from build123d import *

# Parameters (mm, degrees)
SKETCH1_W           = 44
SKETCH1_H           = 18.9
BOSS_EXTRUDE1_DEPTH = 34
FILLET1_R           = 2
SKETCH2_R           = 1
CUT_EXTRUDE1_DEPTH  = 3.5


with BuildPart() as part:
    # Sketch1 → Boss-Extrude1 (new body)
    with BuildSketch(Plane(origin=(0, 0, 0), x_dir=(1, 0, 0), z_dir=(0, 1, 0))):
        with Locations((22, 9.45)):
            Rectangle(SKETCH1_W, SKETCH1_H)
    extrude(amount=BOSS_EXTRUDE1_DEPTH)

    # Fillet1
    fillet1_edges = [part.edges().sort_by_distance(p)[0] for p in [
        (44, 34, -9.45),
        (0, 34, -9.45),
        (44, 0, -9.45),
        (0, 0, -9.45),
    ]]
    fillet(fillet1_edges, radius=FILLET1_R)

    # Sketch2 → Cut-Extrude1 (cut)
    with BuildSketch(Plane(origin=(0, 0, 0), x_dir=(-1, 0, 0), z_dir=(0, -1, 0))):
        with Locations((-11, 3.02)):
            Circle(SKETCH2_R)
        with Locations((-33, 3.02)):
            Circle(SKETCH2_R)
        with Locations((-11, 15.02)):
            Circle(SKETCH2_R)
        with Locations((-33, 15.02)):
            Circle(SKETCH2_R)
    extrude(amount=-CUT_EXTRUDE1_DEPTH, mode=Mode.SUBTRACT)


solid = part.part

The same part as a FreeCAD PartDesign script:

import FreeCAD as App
import Part
import Sketcher
Q = App.Units.Quantity


def edges_at(feature, points):
    """Names of the edges that pass closest to the given points."""
    edges = feature.Shape.Edges
    near = lambda p: min(range(len(edges)), key=lambda i: edges[i].distToShape(Part.Vertex(*p))[0])
    return sorted({f"Edge{near(p) + 1}" for p in points})


def add_polygon(sketch, points):
    """Adds a closed chain of lines whose ends are joined by coincident constraints."""
    first, n = sketch.GeometryCount, len(points)
    for a, b in zip(points, points[1:] + points[:1]):
        sketch.addGeometry(Part.LineSegment(App.Vector(*a, 0), App.Vector(*b, 0)), False)
    for i in range(n):
        sketch.addConstraint(Sketcher.Constraint("Coincident", first + i, 2, first + (i + 1) % n, 1))

doc = App.newDocument("Part")
body = doc.addObject("PartDesign::Body", "Body")

# Sketch on XZ plane
sketch1 = body.newObject("Sketcher::SketchObject", "Sketch")
sketch1.AttachmentSupport = (doc.getObject("XZ_Plane"), [""])
sketch1.MapMode = "FlatFace"
add_polygon(sketch1, [(0, -18.9), (0, 0), (44, 0), (44, -18.9)])  # lines 0-3
sketch1.addConstraint([
    Sketcher.Constraint("Vertical", 0),
    Sketcher.Constraint("Horizontal", 1),
    Sketcher.Constraint("Vertical", 2),
    Sketcher.Constraint("Horizontal", 3),
    Sketcher.Constraint("Coincident", 0, 2, -1, 1),
    Sketcher.Constraint("DistanceX", 1, 1, 1, 2, Q("44 mm")),
    Sketcher.Constraint("DistanceY", 0, 1, 0, 2, Q("18.9 mm")),
])
pad1 = body.newObject("PartDesign::Pad", "Pad")
pad1.Profile = sketch1
pad1.Length = 34
pad1.Reversed = True
doc.recompute()

fillet = body.newObject("PartDesign::Fillet", "Fillet")
fillet.Base = (pad1, edges_at(pad1, [
    (44, 34, -9.45),
    (0, 34, -9.45),
    (44, 0, -9.45),
    (0, 0, -9.45),
]))
fillet.Radius = 2

# Sketch on XZ plane
sketch2 = body.newObject("Sketcher::SketchObject", "Sketch001")
sketch2.AttachmentSupport = (doc.getObject("XZ_Plane"), [""])
sketch2.MapMode = "FlatFace"
sketch2.addGeometry([
    Part.Circle(App.Vector(11, -3.02, 0), App.Vector(0, 0, 1), 1),
    Part.Circle(App.Vector(33, -3.02, 0), App.Vector(0, 0, 1), 1),
    Part.Circle(App.Vector(11, -15.02, 0), App.Vector(0, 0, 1), 1),
    Part.Circle(App.Vector(33, -15.02, 0), App.Vector(0, 0, 1), 1),
], False)
sketch2.addConstraint([
    Sketcher.Constraint("Equal", 0, 1),
    Sketcher.Constraint("Equal", 1, 2),
    Sketcher.Constraint("Equal", 2, 3),
    Sketcher.Constraint("Horizontal", 0, 3, 1, 3),
    Sketcher.Constraint("Horizontal", 2, 3, 3, 3),
    Sketcher.Constraint("Vertical", 0, 3, 2, 3),
    Sketcher.Constraint("Vertical", 1, 3, 3, 3),
    Sketcher.Constraint("Diameter", 0, Q("2 mm")),
    Sketcher.Constraint("DistanceX", -1, 1, 0, 3, Q("11 mm")),
    Sketcher.Constraint("DistanceX", -1, 1, 1, 3, Q("33 mm")),
    Sketcher.Constraint("DistanceY", 2, 3, 0, 3, Q("12 mm")),
    Sketcher.Constraint("DistanceY", 0, 3, -1, 1, Q("3.02 mm")),
])
pocket1 = body.newObject("PartDesign::Pocket", "Pocket")
pocket1.Profile = sketch2
pocket1.Length = 3.5

doc.recompute()
